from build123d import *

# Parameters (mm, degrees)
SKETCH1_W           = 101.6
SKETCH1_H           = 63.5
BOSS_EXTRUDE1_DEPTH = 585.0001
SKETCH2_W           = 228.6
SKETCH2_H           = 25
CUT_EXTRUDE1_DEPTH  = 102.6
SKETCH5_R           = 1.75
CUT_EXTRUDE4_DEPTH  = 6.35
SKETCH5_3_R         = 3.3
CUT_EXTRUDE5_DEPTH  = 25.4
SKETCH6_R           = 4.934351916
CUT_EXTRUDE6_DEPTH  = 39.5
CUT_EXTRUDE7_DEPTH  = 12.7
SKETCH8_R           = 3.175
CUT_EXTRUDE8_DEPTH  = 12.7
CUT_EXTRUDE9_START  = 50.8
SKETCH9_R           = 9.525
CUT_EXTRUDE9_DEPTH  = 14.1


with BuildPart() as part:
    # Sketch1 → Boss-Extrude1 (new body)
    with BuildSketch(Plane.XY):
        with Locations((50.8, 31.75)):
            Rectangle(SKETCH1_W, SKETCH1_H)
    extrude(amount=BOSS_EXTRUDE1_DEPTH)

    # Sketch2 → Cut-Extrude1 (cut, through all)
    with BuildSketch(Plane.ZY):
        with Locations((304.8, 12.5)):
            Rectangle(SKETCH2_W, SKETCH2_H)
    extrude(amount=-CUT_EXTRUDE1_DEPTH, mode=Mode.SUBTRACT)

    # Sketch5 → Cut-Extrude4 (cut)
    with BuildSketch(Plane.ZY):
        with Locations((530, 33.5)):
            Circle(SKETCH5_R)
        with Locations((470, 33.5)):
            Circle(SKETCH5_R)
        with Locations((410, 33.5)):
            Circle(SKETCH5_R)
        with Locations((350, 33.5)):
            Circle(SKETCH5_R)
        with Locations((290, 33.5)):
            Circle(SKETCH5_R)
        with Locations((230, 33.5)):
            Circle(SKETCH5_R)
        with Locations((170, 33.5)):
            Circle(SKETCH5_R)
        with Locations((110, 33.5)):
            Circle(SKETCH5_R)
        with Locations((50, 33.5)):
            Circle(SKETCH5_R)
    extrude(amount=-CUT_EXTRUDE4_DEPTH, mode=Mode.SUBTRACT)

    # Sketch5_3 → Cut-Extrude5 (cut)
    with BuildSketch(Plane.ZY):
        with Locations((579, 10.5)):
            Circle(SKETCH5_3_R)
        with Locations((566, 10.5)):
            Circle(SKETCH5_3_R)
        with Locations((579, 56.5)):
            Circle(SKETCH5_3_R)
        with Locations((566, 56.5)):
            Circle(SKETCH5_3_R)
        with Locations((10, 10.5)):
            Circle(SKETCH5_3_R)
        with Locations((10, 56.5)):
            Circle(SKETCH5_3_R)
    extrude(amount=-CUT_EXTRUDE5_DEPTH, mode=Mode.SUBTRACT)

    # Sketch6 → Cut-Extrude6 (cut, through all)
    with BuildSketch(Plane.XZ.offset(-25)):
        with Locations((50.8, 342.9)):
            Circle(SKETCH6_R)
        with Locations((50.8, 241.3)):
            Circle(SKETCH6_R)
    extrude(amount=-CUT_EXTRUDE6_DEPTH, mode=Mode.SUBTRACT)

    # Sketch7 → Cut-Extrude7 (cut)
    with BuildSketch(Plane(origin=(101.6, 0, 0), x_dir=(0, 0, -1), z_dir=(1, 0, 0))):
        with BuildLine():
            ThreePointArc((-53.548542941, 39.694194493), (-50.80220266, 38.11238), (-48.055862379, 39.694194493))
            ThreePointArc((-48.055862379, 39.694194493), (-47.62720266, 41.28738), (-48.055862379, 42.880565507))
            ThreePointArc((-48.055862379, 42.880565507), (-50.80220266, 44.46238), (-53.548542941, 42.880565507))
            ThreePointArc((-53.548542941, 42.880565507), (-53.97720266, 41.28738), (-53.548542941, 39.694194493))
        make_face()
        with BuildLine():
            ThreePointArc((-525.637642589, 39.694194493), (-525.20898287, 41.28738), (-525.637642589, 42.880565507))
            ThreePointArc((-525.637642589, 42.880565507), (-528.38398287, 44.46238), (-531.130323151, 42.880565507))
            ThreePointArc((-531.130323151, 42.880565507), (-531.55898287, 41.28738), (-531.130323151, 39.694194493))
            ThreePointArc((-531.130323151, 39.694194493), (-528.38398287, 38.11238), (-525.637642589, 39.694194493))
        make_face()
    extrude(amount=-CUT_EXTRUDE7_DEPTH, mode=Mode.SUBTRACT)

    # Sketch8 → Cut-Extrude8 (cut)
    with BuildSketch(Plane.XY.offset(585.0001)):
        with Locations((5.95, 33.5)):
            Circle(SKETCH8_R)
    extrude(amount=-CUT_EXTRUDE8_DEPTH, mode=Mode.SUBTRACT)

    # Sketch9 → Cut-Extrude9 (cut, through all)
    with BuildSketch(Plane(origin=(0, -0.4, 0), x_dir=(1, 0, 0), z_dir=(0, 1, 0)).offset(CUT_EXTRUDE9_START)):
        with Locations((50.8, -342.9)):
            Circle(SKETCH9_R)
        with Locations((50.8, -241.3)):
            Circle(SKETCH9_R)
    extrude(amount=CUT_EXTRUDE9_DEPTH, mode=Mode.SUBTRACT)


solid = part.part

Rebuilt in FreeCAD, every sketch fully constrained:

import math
import FreeCAD as App
import Part
import Sketcher
Q = App.Units.Quantity

doc = App.newDocument("Part")
params = doc.addObject("Spreadsheet::Sheet", "Params")
for row, (alias, value) in enumerate([
    ("sketch1_width", "4 in"),
    ("sketch1_height", "2.5 in"),
    ("pad1_length", "23.0315 in"),
    ("sketch2_height", "9 in"),
    ("pocket2_length", "0.25 in"),
    ("pocket3_length", "1 in"),
    ("sketch6_radius", "0.125 in"),
    ("pocket5_length", "0.5 in"),
    ("sketch7_diameter", "0.25 in"),
    ("pocket6_length", "0.5 in"),
    ("sketch8_diameter", "0.75 in"),
], start=1):
    params.set(f"A{row}", alias)
    params.set(f"B{row}", "=" + value)
    params.setAlias(f"B{row}", alias)

body = doc.addObject("PartDesign::Body", "Body")

# Sketch on XY plane
sketch1 = doc.addObject("Sketcher::SketchObject", "Sketch")
body.addObject(sketch1)
sketch1.AttachmentSupport = (doc.XY_Plane, [""])
sketch1.MapMode = "FlatFace"
sketch1.addGeometry([
    Part.LineSegment(App.Vector(0, 64, 0), App.Vector(0, 0, 0)),
    Part.LineSegment(App.Vector(0, 0, 0), App.Vector(102, 0, 0)),
    Part.LineSegment(App.Vector(102, 0, 0), App.Vector(102, 64, 0)),
    Part.LineSegment(App.Vector(102, 64, 0), App.Vector(0, 64, 0)),
], False)
sketch1.addConstraint([
    Sketcher.Constraint("Coincident", 0, 2, 1, 1),
    Sketcher.Constraint("Coincident", 1, 2, 2, 1),
    Sketcher.Constraint("Coincident", 2, 2, 3, 1),
    Sketcher.Constraint("Coincident", 3, 2, 0, 1),
    Sketcher.Constraint("Vertical", 0),
    Sketcher.Constraint("Horizontal", 1),
    Sketcher.Constraint("Vertical", 2),
    Sketcher.Constraint("Horizontal", 3),
    Sketcher.Constraint("Coincident", 0, 2, -1, 1),
    Sketcher.Constraint("DistanceX", 1, 1, 1, 2, Q("4 in")),
    Sketcher.Constraint("DistanceY", 0, 2, 0, 1, Q("2.5 in")),
])
sketch1.setExpression("Constraints[9]", "Params.sketch1_width")
sketch1.setExpression("Constraints[10]", "Params.sketch1_height")
pad1 = doc.addObject("PartDesign::Pad", "Pad")
body.addObject(pad1)
pad1.Profile = sketch1
pad1.setExpression("Length", "Params.pad1_length")

# Sketch on YZ plane
sketch2 = doc.addObject("Sketcher::SketchObject", "Sketch001")
body.addObject(sketch2)
sketch2.AttachmentSupport = (doc.YZ_Plane, [""])
sketch2.MapMode = "FlatFace"
sketch2.addGeometry([
    Part.LineSegment(App.Vector(25, 190, 0), App.Vector(0, 190, 0)),
    Part.LineSegment(App.Vector(0, 190, 0), App.Vector(0, 419, 0)),
    Part.LineSegment(App.Vector(0, 419, 0), App.Vector(25, 419, 0)),
    Part.LineSegment(App.Vector(25, 419, 0), App.Vector(25, 190, 0)),
], False)
sketch2.addConstraint([
    Sketcher.Constraint("Coincident", 0, 2, 1, 1),
    Sketcher.Constraint("Coincident", 1, 2, 2, 1),
    Sketcher.Constraint("Coincident", 2, 2, 3, 1),
    Sketcher.Constraint("Coincident", 3, 2, 0, 1),
    Sketcher.Constraint("Horizontal", 0),
    Sketcher.Constraint("Vertical", 1),
    Sketcher.Constraint("Horizontal", 2),
    Sketcher.Constraint("Vertical", 3),
    Sketcher.Constraint("PointOnObject", 0, 2, -2),
    Sketcher.Constraint("DistanceY", 1, 1, 1, 2, Q("9 in")),
    Sketcher.Constraint("DistanceY", -1, 1, 0, 2, Q("7.5 in")),
    Sketcher.Constraint("DistanceX", 0, 2, 0, 1, Q("25 mm")),
])
sketch2.setExpression("Constraints[9]", "Params.sketch2_height")
pocket1 = doc.addObject("PartDesign::Pocket", "Pocket")
body.addObject(pocket1)
pocket1.Profile = sketch2
pocket1.Type = "ThroughAll"
pocket1.Reversed = True

# Sketch on YZ plane
sketch3 = doc.addObject("Sketcher::SketchObject", "Sketch002")
body.addObject(sketch3)
sketch3.AttachmentSupport = (doc.YZ_Plane, [""])
sketch3.MapMode = "FlatFace"
sketch3.addGeometry([
    Part.Circle(App.Vector(33.5, 530, 0), App.Vector(0, 0, 1), 1.8),  # 0
    Part.Circle(App.Vector(33.5, 470, 0), App.Vector(0, 0, 1), 1.8),  # 1
    Part.Circle(App.Vector(33.5, 410, 0), App.Vector(0, 0, 1), 1.8),  # 2
    Part.Circle(App.Vector(33.5, 350, 0), App.Vector(0, 0, 1), 1.8),  # 3
    Part.Circle(App.Vector(33.5, 290, 0), App.Vector(0, 0, 1), 1.8),  # 4
    Part.Circle(App.Vector(33.5, 230, 0), App.Vector(0, 0, 1), 1.8),  # 5
    Part.Circle(App.Vector(33.5, 170, 0), App.Vector(0, 0, 1), 1.8),  # 6
    Part.Circle(App.Vector(33.5, 110, 0), App.Vector(0, 0, 1), 1.8),  # 7
    Part.Circle(App.Vector(33.5, 50, 0), App.Vector(0, 0, 1), 1.8),  # 8
], False)
sketch3.addConstraint([
    Sketcher.Constraint("Equal", 0, 1),
    Sketcher.Constraint("Equal", 1, 2),
    Sketcher.Constraint("Equal", 2, 3),
    Sketcher.Constraint("Equal", 3, 4),
    Sketcher.Constraint("Equal", 4, 5),
    Sketcher.Constraint("Equal", 5, 6),
    Sketcher.Constraint("Equal", 6, 7),
    Sketcher.Constraint("Equal", 7, 8),
    Sketcher.Constraint("Vertical", 0, 3, 1, 3),
    Sketcher.Constraint("Vertical", 1, 3, 2, 3),
    Sketcher.Constraint("Vertical", 2, 3, 3, 3),
    Sketcher.Constraint("Vertical", 3, 3, 4, 3),
    Sketcher.Constraint("Vertical", 4, 3, 5, 3),
    Sketcher.Constraint("Vertical", 5, 3, 6, 3),
    Sketcher.Constraint("Vertical", 6, 3, 7, 3),
    Sketcher.Constraint("Vertical", 7, 3, 8, 3),
    Sketcher.Constraint("Diameter", 0, Q("3.5 mm")),
    Sketcher.Constraint("DistanceX", -1, 1, 0, 3, Q("33.5 mm")),
    Sketcher.Constraint("DistanceY", -1, 1, 0, 3, Q("530 mm")),
    Sketcher.Constraint("DistanceY", -1, 1, 1, 3, Q("470 mm")),
    Sketcher.Constraint("DistanceY", -1, 1, 2, 3, Q("410 mm")),
    Sketcher.Constraint("DistanceY", -1, 1, 3, 3, Q("350 mm")),
    Sketcher.Constraint("DistanceY", -1, 1, 4, 3, Q("290 mm")),
    Sketcher.Constraint("DistanceY", -1, 1, 5, 3, Q("230 mm")),
    Sketcher.Constraint("DistanceY", -1, 1, 6, 3, Q("170 mm")),
    Sketcher.Constraint("DistanceY", -1, 1, 7, 3, Q("110 mm")),
    Sketcher.Constraint("DistanceY", -1, 1, 8, 3, Q("50 mm")),
])
pocket2 = doc.addObject("PartDesign::Pocket", "Pocket001")
body.addObject(pocket2)
pocket2.Profile = sketch3
pocket2.setExpression("Length", "Params.pocket2_length")
pocket2.Reversed = True

# Sketch on YZ plane
sketch4 = doc.addObject("Sketcher::SketchObject", "Sketch003")
body.addObject(sketch4)
sketch4.AttachmentSupport = (doc.YZ_Plane, [""])
sketch4.MapMode = "FlatFace"
sketch4.addGeometry([
    Part.Circle(App.Vector(10.5, 579, 0), App.Vector(0, 0, 1), 3.3),  # 0
    Part.Circle(App.Vector(10.5, 566, 0), App.Vector(0, 0, 1), 3.3),  # 1
    Part.Circle(App.Vector(56.5, 579, 0), App.Vector(0, 0, 1), 3.3),  # 2
    Part.Circle(App.Vector(56.5, 566, 0), App.Vector(0, 0, 1), 3.3),  # 3
    Part.Circle(App.Vector(10.5, 10, 0), App.Vector(0, 0, 1), 3.3),  # 4
    Part.Circle(App.Vector(56.5, 10, 0), App.Vector(0, 0, 1), 3.3),  # 5
], False)
sketch4.addConstraint([
    Sketcher.Constraint("Equal", 0, 1),
    Sketcher.Constraint("Equal", 1, 2),
    Sketcher.Constraint("Equal", 2, 3),
    Sketcher.Constraint("Equal", 3, 4),
    Sketcher.Constraint("Equal", 4, 5),
    Sketcher.Constraint("Horizontal", 0, 3, 2, 3),
    Sketcher.Constraint("Horizontal", 1, 3, 3, 3),
    Sketcher.Constraint("Horizontal", 4, 3, 5, 3),
    Sketcher.Constraint("Vertical", 0, 3, 1, 3),
    Sketcher.Constraint("Vertical", 2, 3, 3, 3),
    Sketcher.Constraint("Vertical", 1, 3, 4, 3),
    Sketcher.Constraint("Vertical", 3, 3, 5, 3),
    Sketcher.Constraint("Diameter", 0, Q("6.6 mm")),
    Sketcher.Constraint("DistanceX", -1, 1, 0, 3, Q("10.5 mm")),
    Sketcher.Constraint("DistanceY", -1, 1, 0, 3, Q("579 mm")),
    Sketcher.Constraint("DistanceY", -1, 1, 1, 3, Q("566 mm")),
    Sketcher.Constraint("DistanceX", -1, 1, 2, 3, Q("56.5 mm")),
    Sketcher.Constraint("DistanceY", -1, 1, 4, 3, Q("10 mm")),
])
pocket3 = doc.addObject("PartDesign::Pocket", "Pocket002")
body.addObject(pocket3)
pocket3.Profile = sketch4
pocket3.setExpression("Length", "Params.pocket3_length")
pocket3.Reversed = True

# Sketch on XZ plane
sketch5 = doc.addObject("Sketcher::SketchObject", "Sketch004")
body.addObject(sketch5)
sketch5.AttachmentSupport = (doc.XZ_Plane, [""])
sketch5.MapMode = "FlatFace"
sketch5.AttachmentOffset = App.Placement(App.Vector(0, 0, -25), App.Rotation())
sketch5.addGeometry([
    Part.Circle(App.Vector(50.8, 342.9, 0), App.Vector(0, 0, 1), 4.9),
    Part.Circle(App.Vector(50.8, 241.3, 0), App.Vector(0, 0, 1), 4.9),
], False)
sketch5.addConstraint([
    Sketcher.Constraint("Equal", 0, 1),
    Sketcher.Constraint("Vertical", 0, 3, 1, 3),
    Sketcher.Constraint("DistanceX", -1, 1, 0, 3, Q("2 in")),
    Sketcher.Constraint("DistanceY", 1, 3, 0, 3, Q("4 in")),
    Sketcher.Constraint("DistanceY", -1, 1, 0, 3, Q("13.5 in")),
    Sketcher.Constraint("Diameter", 0, Q("9.868704 mm")),
])
pocket4 = doc.addObject("PartDesign::Pocket", "Pocket003")
body.addObject(pocket4)
pocket4.Profile = sketch5
pocket4.Type = "ThroughAll"

# Sketch on YZ plane
sketch6 = doc.addObject("Sketcher::SketchObject", "Sketch005")
body.addObject(sketch6)
sketch6.AttachmentSupport = (doc.YZ_Plane, [""])
sketch6.MapMode = "FlatFace"
sketch6.AttachmentOffset = App.Placement(App.Vector(0, 0, 4 * 25.4), App.Rotation())
sketch6.addGeometry([
    Part.ArcOfCircle(Part.Circle(App.Vector(41.3, 50.8, 0), App.Vector(0, 0, 1), 3.2), math.radians(120), math.radians(240)),  # 0
    Part.ArcOfCircle(Part.Circle(App.Vector(41.3, 50.8, 0), App.Vector(0, 0, 1), 3.2), math.radians(-120), math.radians(-60)),  # 1
    Part.ArcOfCircle(Part.Circle(App.Vector(41.3, 50.8, 0), App.Vector(0, 0, 1), 3.2), math.radians(-60), math.radians(60)),  # 2
    Part.ArcOfCircle(Part.Circle(App.Vector(41.3, 50.8, 0), App.Vector(0, 0, 1), 3.2), math.radians(60), math.radians(120)),  # 3
    Part.ArcOfCircle(Part.Circle(App.Vector(41.3, 528.4, 0), App.Vector(0, 0, 1), 3.2), math.radians(-120), math.radians(-60)),  # 4
    Part.ArcOfCircle(Part.Circle(App.Vector(41.3, 528.4, 0), App.Vector(0, 0, 1), 3.2), math.radians(-60), math.radians(60)),  # 5
    Part.ArcOfCircle(Part.Circle(App.Vector(41.3, 528.4, 0), App.Vector(0, 0, 1), 3.2), math.radians(60), math.radians(120)),  # 6
    Part.ArcOfCircle(Part.Circle(App.Vector(41.3, 528.4, 0), App.Vector(0, 0, 1), 3.2), math.radians(120), math.radians(240)),  # 7
], False)
sketch6.addConstraint([
    Sketcher.Constraint("Tangent", 0, 2, 1, 1),
    Sketcher.Constraint("Tangent", 1, 2, 2, 1),
    Sketcher.Constraint("Tangent", 2, 2, 3, 1),
    Sketcher.Constraint("Tangent", 3, 2, 0, 1),
    Sketcher.Constraint("Tangent", 4, 2, 5, 1),
    Sketcher.Constraint("Tangent", 5, 2, 6, 1),
    Sketcher.Constraint("Tangent", 6, 2, 7, 1),
    Sketcher.Constraint("Tangent", 7, 2, 4, 1),
    Sketcher.Constraint("Equal", 0, 1),
    Sketcher.Constraint("Equal", 3, 4),
    Sketcher.Constraint("Equal", 4, 5),
    Sketcher.Constraint("Horizontal", 0, 2, 1, 2),
    Sketcher.Constraint("Horizontal", 2, 2, 3, 2),
    Sketcher.Constraint("Horizontal", 5, 2, 6, 2),
    Sketcher.Constraint("Horizontal", 4, 2, 7, 2),
    Sketcher.Constraint("Vertical", 3, 3, 4, 3),
    Sketcher.Constraint("Vertical", 1, 2, 2, 2),
    Sketcher.Constraint("Vertical", 2, 2, 4, 2),
    Sketcher.Constraint("Vertical", 4, 2, 5, 2),
    Sketcher.Constraint("Radius", 0, Q("0.125 in")),
    Sketcher.Constraint("DistanceY", 2, 2, 4, 2, Q("472.0891 mm")),
    Sketcher.Constraint("DistanceX", -1, 1, 0, 3, Q("41.28738 mm")),
    Sketcher.Constraint("DistanceY", 3, 3, 4, 3, Q("477.58178 mm")),
    Sketcher.Constraint("DistanceY", -1, 1, 0, 3, Q("50.802203 mm")),
])
sketch6.setExpression("Constraints[19]", "Params.sketch6_radius")
pocket5 = doc.addObject("PartDesign::Pocket", "Pocket004")
body.addObject(pocket5)
pocket5.Profile = sketch6
pocket5.setExpression("Length", "Params.pocket5_length")

# Sketch on XY plane
sketch7 = doc.addObject("Sketcher::SketchObject", "Sketch006")
body.addObject(sketch7)
sketch7.AttachmentSupport = (doc.XY_Plane, [""])
sketch7.MapMode = "FlatFace"
sketch7.AttachmentOffset = App.Placement(App.Vector(0, 0, 23.0315 * 25.4), App.Rotation())
sketch7.addGeometry(Part.Circle(App.Vector(6, 33.5, 0), App.Vector(0, 0, 1), 3.2), False)
sketch7.addConstraint([
    Sketcher.Constraint("Diameter", 0, Q("0.25 in")),
    Sketcher.Constraint("DistanceX", -1, 1, 0, 3, Q("5.95 mm")),
    Sketcher.Constraint("DistanceY", -1, 1, 0, 3, Q("33.5 mm")),
])
sketch7.setExpression("Constraints[0]", "Params.sketch7_diameter")
pocket6 = doc.addObject("PartDesign::Pocket", "Pocket005")
body.addObject(pocket6)
pocket6.Profile = sketch7
pocket6.setExpression("Length", "Params.pocket6_length")

# Sketch on XZ plane
sketch8 = doc.addObject("Sketcher::SketchObject", "Sketch007")
body.addObject(sketch8)
sketch8.AttachmentSupport = (doc.XZ_Plane, [""])
sketch8.MapMode = "FlatFace"
sketch8.AttachmentOffset = App.Placement(App.Vector(0, 0, -50.4), App.Rotation())
sketch8.addGeometry([
    Part.Circle(App.Vector(51, 343, 0), App.Vector(0, 0, 1), 10),
    Part.Circle(App.Vector(51, 241, 0), App.Vector(0, 0, 1), 10),
], False)
sketch8.addConstraint([
    Sketcher.Constraint("Equal", 0, 1),
    Sketcher.Constraint("Vertical", 0, 3, 1, 3),
    Sketcher.Constraint("Diameter", 0, Q("0.75 in")),
    Sketcher.Constraint("DistanceX", -1, 1, 0, 3, Q("2 in")),
    Sketcher.Constraint("DistanceY", 1, 3, 0, 3, Q("4 in")),
    Sketcher.Constraint("DistanceY", -1, 1, 0, 3, Q("13.5 in")),
])
sketch8.setExpression("Constraints[2]", "Params.sketch8_diameter")
pocket7 = doc.addObject("PartDesign::Pocket", "Pocket006")
body.addObject(pocket7)
pocket7.Profile = sketch8
pocket7.Type = "ThroughAll"

doc.recompute()
